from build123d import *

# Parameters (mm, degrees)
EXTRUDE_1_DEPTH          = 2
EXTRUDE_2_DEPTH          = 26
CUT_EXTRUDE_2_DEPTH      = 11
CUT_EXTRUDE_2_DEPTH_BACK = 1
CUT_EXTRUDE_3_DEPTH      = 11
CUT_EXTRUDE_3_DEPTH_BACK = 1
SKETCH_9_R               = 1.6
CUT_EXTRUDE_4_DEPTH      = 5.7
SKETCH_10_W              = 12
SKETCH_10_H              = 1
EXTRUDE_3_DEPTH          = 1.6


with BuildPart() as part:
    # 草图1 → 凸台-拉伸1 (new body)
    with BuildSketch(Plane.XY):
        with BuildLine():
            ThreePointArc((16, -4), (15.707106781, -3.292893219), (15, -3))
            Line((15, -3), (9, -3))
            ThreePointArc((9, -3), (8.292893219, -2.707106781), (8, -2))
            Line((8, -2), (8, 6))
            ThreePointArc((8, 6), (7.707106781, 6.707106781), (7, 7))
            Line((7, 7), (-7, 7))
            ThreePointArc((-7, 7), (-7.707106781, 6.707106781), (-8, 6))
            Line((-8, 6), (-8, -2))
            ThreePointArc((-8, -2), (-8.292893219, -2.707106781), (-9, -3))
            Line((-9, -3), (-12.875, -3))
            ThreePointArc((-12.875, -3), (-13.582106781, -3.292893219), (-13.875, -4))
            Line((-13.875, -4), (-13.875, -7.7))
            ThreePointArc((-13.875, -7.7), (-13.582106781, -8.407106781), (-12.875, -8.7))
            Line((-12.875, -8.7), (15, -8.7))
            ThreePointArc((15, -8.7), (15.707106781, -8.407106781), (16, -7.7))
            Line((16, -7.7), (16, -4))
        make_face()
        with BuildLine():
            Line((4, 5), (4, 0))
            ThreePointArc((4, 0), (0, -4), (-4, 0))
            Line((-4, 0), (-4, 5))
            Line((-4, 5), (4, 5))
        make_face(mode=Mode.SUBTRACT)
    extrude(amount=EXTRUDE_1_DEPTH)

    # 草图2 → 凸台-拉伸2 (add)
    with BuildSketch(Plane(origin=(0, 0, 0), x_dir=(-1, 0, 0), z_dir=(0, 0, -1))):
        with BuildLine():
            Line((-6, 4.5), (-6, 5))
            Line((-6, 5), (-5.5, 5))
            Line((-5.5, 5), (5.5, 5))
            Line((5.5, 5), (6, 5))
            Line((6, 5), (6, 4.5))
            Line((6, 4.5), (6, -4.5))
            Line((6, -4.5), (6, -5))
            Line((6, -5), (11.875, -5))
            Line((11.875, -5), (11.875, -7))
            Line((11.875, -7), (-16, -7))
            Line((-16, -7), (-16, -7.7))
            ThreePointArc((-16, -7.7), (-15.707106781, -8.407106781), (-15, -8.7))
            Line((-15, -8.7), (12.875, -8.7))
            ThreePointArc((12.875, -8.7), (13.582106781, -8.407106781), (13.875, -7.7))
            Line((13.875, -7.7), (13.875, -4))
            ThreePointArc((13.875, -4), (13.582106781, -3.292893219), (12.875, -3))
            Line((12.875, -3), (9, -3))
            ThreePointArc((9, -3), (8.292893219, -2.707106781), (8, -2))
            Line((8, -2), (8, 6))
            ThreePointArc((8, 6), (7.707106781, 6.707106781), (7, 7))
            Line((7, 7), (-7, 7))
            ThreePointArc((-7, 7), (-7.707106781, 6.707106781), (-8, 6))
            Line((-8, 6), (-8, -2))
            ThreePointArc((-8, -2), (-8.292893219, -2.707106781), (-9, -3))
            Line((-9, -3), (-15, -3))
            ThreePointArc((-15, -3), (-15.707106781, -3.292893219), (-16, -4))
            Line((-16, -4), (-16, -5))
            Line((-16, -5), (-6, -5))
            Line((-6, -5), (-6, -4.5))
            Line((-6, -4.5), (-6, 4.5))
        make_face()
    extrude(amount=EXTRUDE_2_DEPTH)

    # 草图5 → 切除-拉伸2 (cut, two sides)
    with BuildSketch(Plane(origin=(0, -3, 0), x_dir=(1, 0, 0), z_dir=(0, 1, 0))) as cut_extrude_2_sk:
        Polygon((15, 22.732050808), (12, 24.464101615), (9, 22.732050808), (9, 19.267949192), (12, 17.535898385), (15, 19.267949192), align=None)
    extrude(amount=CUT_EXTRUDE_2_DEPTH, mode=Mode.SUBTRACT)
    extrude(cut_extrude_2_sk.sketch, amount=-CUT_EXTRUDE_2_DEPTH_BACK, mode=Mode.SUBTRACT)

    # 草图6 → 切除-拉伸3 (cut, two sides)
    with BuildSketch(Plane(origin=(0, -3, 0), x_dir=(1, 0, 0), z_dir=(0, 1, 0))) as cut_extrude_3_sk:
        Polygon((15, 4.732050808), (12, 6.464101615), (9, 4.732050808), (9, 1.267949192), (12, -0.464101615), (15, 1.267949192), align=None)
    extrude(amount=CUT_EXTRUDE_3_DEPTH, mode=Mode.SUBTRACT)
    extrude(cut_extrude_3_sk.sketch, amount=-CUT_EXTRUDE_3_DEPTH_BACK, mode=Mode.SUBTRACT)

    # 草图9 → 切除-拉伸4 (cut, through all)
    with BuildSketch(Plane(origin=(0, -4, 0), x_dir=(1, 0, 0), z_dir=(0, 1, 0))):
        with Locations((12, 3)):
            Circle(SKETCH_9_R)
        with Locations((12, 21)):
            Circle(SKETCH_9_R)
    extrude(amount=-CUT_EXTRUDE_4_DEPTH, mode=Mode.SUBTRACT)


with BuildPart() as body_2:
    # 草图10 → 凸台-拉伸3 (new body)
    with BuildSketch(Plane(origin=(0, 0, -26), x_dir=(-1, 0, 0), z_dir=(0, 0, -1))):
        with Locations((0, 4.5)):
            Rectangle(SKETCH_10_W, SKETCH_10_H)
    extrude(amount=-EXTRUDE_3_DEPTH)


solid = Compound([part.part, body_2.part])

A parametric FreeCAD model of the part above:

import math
import FreeCAD as App
import Part
import Sketcher
Q = App.Units.Quantity


def add_polygon(sketch, points):
    """Adds a closed chain of lines whose ends are joined by coincident constraints."""
    first, n = sketch.GeometryCount, len(points)
    for a, b in zip(points, points[1:] + points[:1]):
        sketch.addGeometry(Part.LineSegment(App.Vector(*a, 0), App.Vector(*b, 0)), False)
    for i in range(n):
        sketch.addConstraint(Sketcher.Constraint("Coincident", first + i, 2, first + (i + 1) % n, 1))

doc = App.newDocument("Part")
body = doc.addObject("PartDesign::Body", "Body")

# Sketch on XY plane
sketch1 = doc.addObject("Sketcher::SketchObject", "Sketch")
body.addObject(sketch1)
sketch1.AttachmentSupport = (doc.XY_Plane, [""])
sketch1.MapMode = "FlatFace"
sketch1.addGeometry([
    Part.ArcOfCircle(Part.Circle(App.Vector(15, -4, 0), App.Vector(0, 0, 1), 1), math.radians(0), math.radians(90)),  # 0
    Part.LineSegment(App.Vector(15, -3, 0), App.Vector(9, -3, 0)),  # 1
    Part.ArcOfCircle(Part.Circle(App.Vector(9, -2, 0), App.Vector(0, 0, 1), 1), math.radians(-180), math.radians(-90)),  # 2
    Part.LineSegment(App.Vector(8, -2, 0), App.Vector(8, 6, 0)),  # 3
    Part.ArcOfCircle(Part.Circle(App.Vector(7, 6, 0), App.Vector(0, 0, 1), 1), math.radians(0), math.radians(90)),  # 4
    Part.LineSegment(App.Vector(7, 7, 0), App.Vector(-7, 7, 0)),  # 5
    Part.ArcOfCircle(Part.Circle(App.Vector(-7, 6, 0), App.Vector(0, 0, 1), 1), math.radians(90), math.radians(180)),  # 6
    Part.LineSegment(App.Vector(-8, 6, 0), App.Vector(-8, -2, 0)),  # 7
    Part.ArcOfCircle(Part.Circle(App.Vector(-9, -2, 0), App.Vector(0, 0, 1), 1), math.radians(-90), math.radians(0)),  # 8
    Part.LineSegment(App.Vector(-9, -3, 0), App.Vector(-12.9, -3, 0)),  # 9
    Part.ArcOfCircle(Part.Circle(App.Vector(-12.9, -4, 0), App.Vector(0, 0, 1), 1), math.radians(90), math.radians(180)),  # 10
    Part.LineSegment(App.Vector(-13.9, -4, 0), App.Vector(-13.9, -7.7, 0)),  # 11
    Part.ArcOfCircle(Part.Circle(App.Vector(-12.9, -7.7, 0), App.Vector(0, 0, 1), 1), math.radians(-180), math.radians(-90)),  # 12
    Part.LineSegment(App.Vector(-12.9, -8.7, 0), App.Vector(15, -8.7, 0)),  # 13
    Part.ArcOfCircle(Part.Circle(App.Vector(15, -7.7, 0), App.Vector(0, 0, 1), 1), math.radians(-90), math.radians(0)),  # 14
    Part.LineSegment(App.Vector(16, -7.7, 0), App.Vector(16, -4, 0)),  # 15
    Part.LineSegment(App.Vector(-4, 5, 0), App.Vector(4, 5, 0)),  # 16
    Part.LineSegment(App.Vector(4, 5, 0), App.Vector(4, 0, 0)),  # 17
    Part.ArcOfCircle(Part.Circle(App.Vector(0, 0, 0), App.Vector(0, 0, 1), 4), math.radians(180), math.radians(360)),  # 18
    Part.LineSegment(App.Vector(-4, 0, 0), App.Vector(-4, 5, 0)),  # 19
], False)
sketch1.addConstraint([
    Sketcher.Constraint("Tangent", 0, 2, 1, 1),
    Sketcher.Constraint("Tangent", 1, 2, 2, 2),
    Sketcher.Constraint("Tangent", 2, 1, 3, 1),
    Sketcher.Constraint("Tangent", 3, 2, 4, 1),
    Sketcher.Constraint("Tangent", 4, 2, 5, 1),
    Sketcher.Constraint("Tangent", 5, 2, 6, 1),
    Sketcher.Constraint("Tangent", 6, 2, 7, 1),
    Sketcher.Constraint("Tangent", 7, 2, 8, 2),
    Sketcher.Constraint("Tangent", 8, 1, 9, 1),
    Sketcher.Constraint("Tangent", 9, 2, 10, 1),
    Sketcher.Constraint("Tangent", 10, 2, 11, 1),
    Sketcher.Constraint("Tangent", 11, 2, 12, 1),
    Sketcher.Constraint("Tangent", 12, 2, 13, 1),
    Sketcher.Constraint("Tangent", 13, 2, 14, 1),
    Sketcher.Constraint("Tangent", 14, 2, 15, 1),
    Sketcher.Constraint("Tangent", 15, 2, 0, 1),
    Sketcher.Constraint("Coincident", 16, 2, 17, 1),
    Sketcher.Constraint("Tangent", 17, 2, 18, 2),
    Sketcher.Constraint("Tangent", 18, 1, 19, 1),
    Sketcher.Constraint("Coincident", 19, 2, 16, 1),
    Sketcher.Constraint("Horizontal", 1),
    Sketcher.Constraint("Vertical", 3),
    Sketcher.Constraint("Horizontal", 5),
    Sketcher.Constraint("Vertical", 7),
    Sketcher.Constraint("Horizontal", 9),
    Sketcher.Constraint("Vertical", 11),
    Sketcher.Constraint("Horizontal", 13),
    Sketcher.Constraint("Vertical", 15),
    Sketcher.Constraint("Horizontal", 16),
    Sketcher.Constraint("Vertical", 17),
    Sketcher.Constraint("Vertical", 19),
    Sketcher.Constraint("Coincident", 18, 3, -1, 1),
    Sketcher.Constraint("Equal", 0, 2),
    Sketcher.Constraint("Equal", 2, 4),
    Sketcher.Constraint("Equal", 4, 6),
    Sketcher.Constraint("Equal", 6, 8),
    Sketcher.Constraint("Equal", 8, 10),
    Sketcher.Constraint("Equal", 10, 12),
    Sketcher.Constraint("Equal", 12, 14),
    Sketcher.Constraint("Symmetric", 2, 3, 8, 3, -2),
    Sketcher.Constraint("Equal", 16, 3),
    Sketcher.Constraint("Radius", 0, 1.0),
    Sketcher.Constraint("Radius", 18, 4.0),
    Sketcher.Constraint("DistanceX", 1, 2, 1, 1, 6.0),
    Sketcher.Constraint("DistanceX", 5, 2, 5, 1, 14.0),
    Sketcher.Constraint("DistanceY", 17, 2, 17, 1, 5.0),
    Sketcher.Constraint("DistanceY", 11, 2, 11, 1, 3.7),
    Sketcher.Constraint("DistanceY", 0, 3, -1, 1, 4.0),
    Sketcher.Constraint("DistanceX", 9, 2, 9, 1, 3.875),
])
pad1 = doc.addObject("PartDesign::Pad", "Pad")
body.addObject(pad1)
pad1.Profile = sketch1
pad1.Length = 2

# Sketch on XY plane
sketch2 = doc.addObject("Sketcher::SketchObject", "Sketch001")
body.addObject(sketch2)
sketch2.AttachmentSupport = (doc.XY_Plane, [""])
sketch2.MapMode = "FlatFace"
sketch2.addGeometry([
    Part.LineSegment(App.Vector(6, 5, 0), App.Vector(-6, 5, 0)),  # 0
    Part.LineSegment(App.Vector(-6, 5, 0), App.Vector(-6, -5, 0)),  # 1
    Part.LineSegment(App.Vector(-6, -5, 0), App.Vector(-11.9, -5, 0)),  # 2
    Part.LineSegment(App.Vector(-11.9, -5, 0), App.Vector(-11.9, -7, 0)),  # 3
    Part.LineSegment(App.Vector(-11.9, -7, 0), App.Vector(16, -7, 0)),  # 4
    Part.LineSegment(App.Vector(16, -7, 0), App.Vector(16, -7.7, 0)),  # 5
    Part.ArcOfCircle(Part.Circle(App.Vector(15, -7.7, 0), App.Vector(0, 0, 1), 1), math.radians(-90), math.radians(0)),  # 6
    Part.LineSegment(App.Vector(15, -8.7, 0), App.Vector(-12.9, -8.7, 0)),  # 7
    Part.ArcOfCircle(Part.Circle(App.Vector(-12.9, -7.7, 0), App.Vector(0, 0, 1), 1), math.radians(-180), math.radians(-90)),  # 8
    Part.LineSegment(App.Vector(-13.9, -7.7, 0), App.Vector(-13.9, -4, 0)),  # 9
    Part.ArcOfCircle(Part.Circle(App.Vector(-12.9, -4, 0), App.Vector(0, 0, 1), 1), math.radians(90), math.radians(180)),  # 10
    Part.LineSegment(App.Vector(-12.9, -3, 0), App.Vector(-9, -3, 0)),  # 11
    Part.ArcOfCircle(Part.Circle(App.Vector(-9, -2, 0), App.Vector(0, 0, 1), 1), math.radians(-90), math.radians(0)),  # 12
    Part.LineSegment(App.Vector(-8, -2, 0), App.Vector(-8, 6, 0)),  # 13
    Part.ArcOfCircle(Part.Circle(App.Vector(-7, 6, 0), App.Vector(0, 0, 1), 1), math.radians(90), math.radians(180)),  # 14
    Part.LineSegment(App.Vector(-7, 7, 0), App.Vector(7, 7, 0)),  # 15
    Part.ArcOfCircle(Part.Circle(App.Vector(7, 6, 0), App.Vector(0, 0, 1), 1), math.radians(0), math.radians(90)),  # 16
    Part.LineSegment(App.Vector(8, 6, 0), App.Vector(8, -2, 0)),  # 17
    Part.ArcOfCircle(Part.Circle(App.Vector(9, -2, 0), App.Vector(0, 0, 1), 1), math.radians(-180), math.radians(-90)),  # 18
    Part.LineSegment(App.Vector(9, -3, 0), App.Vector(15, -3, 0)),  # 19
    Part.ArcOfCircle(Part.Circle(App.Vector(15, -4, 0), App.Vector(0, 0, 1), 1), math.radians(0), math.radians(90)),  # 20
    Part.LineSegment(App.Vector(16, -4, 0), App.Vector(16, -5, 0)),  # 21
    Part.LineSegment(App.Vector(16, -5, 0), App.Vector(6, -5, 0)),  # 22
    Part.LineSegment(App.Vector(6, -5, 0), App.Vector(6, 5, 0)),  # 23
], False)
sketch2.addConstraint([
    Sketcher.Constraint("Coincident", 0, 2, 1, 1),
    Sketcher.Constraint("Coincident", 1, 2, 2, 1),
    Sketcher.Constraint("Coincident", 2, 2, 3, 1),
    Sketcher.Constraint("Coincident", 3, 2, 4, 1),
    Sketcher.Constraint("Coincident", 4, 2, 5, 1),
    Sketcher.Constraint("Tangent", 5, 2, 6, 2),
    Sketcher.Constraint("Tangent", 6, 1, 7, 1),
    Sketcher.Constraint("Tangent", 7, 2, 8, 2),
    Sketcher.Constraint("Tangent", 8, 1, 9, 1),
    Sketcher.Constraint("Tangent", 9, 2, 10, 2),
    Sketcher.Constraint("Tangent", 10, 1, 11, 1),
    Sketcher.Constraint("Tangent", 11, 2, 12, 1),
    Sketcher.Constraint("Tangent", 12, 2, 13, 1),
    Sketcher.Constraint("Tangent", 13, 2, 14, 2),
    Sketcher.Constraint("Tangent", 14, 1, 15, 1),
    Sketcher.Constraint("Tangent", 15, 2, 16, 2),
    Sketcher.Constraint("Tangent", 16, 1, 17, 1),
    Sketcher.Constraint("Tangent", 17, 2, 18, 1),
    Sketcher.Constraint("Tangent", 18, 2, 19, 1),
    Sketcher.Constraint("Tangent", 19, 2, 20, 2),
    Sketcher.Constraint("Tangent", 20, 1, 21, 1),
    Sketcher.Constraint("Coincident", 21, 2, 22, 1),
    Sketcher.Constraint("Coincident", 22, 2, 23, 1),
    Sketcher.Constraint("Coincident", 23, 2, 0, 1),
    Sketcher.Constraint("Horizontal", 0),
    Sketcher.Constraint("Vertical", 1),
    Sketcher.Constraint("Horizontal", 2),
    Sketcher.Constraint("Vertical", 3),
    Sketcher.Constraint("Horizontal", 4),
    Sketcher.Constraint("Vertical", 5),
    Sketcher.Constraint("Horizontal", 7),
    Sketcher.Constraint("Vertical", 9),
    Sketcher.Constraint("Horizontal", 11),
    Sketcher.Constraint("Vertical", 13),
    Sketcher.Constraint("Horizontal", 15),
    Sketcher.Constraint("Vertical", 17),
    Sketcher.Constraint("Horizontal", 19),
    Sketcher.Constraint("Vertical", 21),
    Sketcher.Constraint("Horizontal", 22),
    Sketcher.Constraint("Vertical", 23),
    Sketcher.Constraint("Equal", 6, 8),
    Sketcher.Constraint("Equal", 8, 10),
    Sketcher.Constraint("Equal", 10, 12),
    Sketcher.Constraint("Equal", 12, 14),
    Sketcher.Constraint("Equal", 14, 16),
    Sketcher.Constraint("Equal", 16, 18),
    Sketcher.Constraint("Equal", 18, 20),
    Sketcher.Constraint("Symmetric", 0, 2, 22, 2, -1, 1),
    Sketcher.Constraint("Symmetric", 12, 3, 18, 3, -2),
    Sketcher.Constraint("Horizontal", 2, 2, 21, 2),
    Sketcher.Constraint("Vertical", 6, 3, 20, 3),
    Sketcher.Constraint("Equal", 4, 7),
    Sketcher.Constraint("Equal", 22, 1),
    Sketcher.Constraint("Radius", 6, 1.0),
    Sketcher.Constraint("DistanceX", 0, 2, 0, 1, 12.0),
    Sketcher.Constraint("DistanceX", 15, 1, 15, 2, 14.0),
    Sketcher.Constraint("DistanceX", 19, 1, 19, 2, 6.0),
    Sketcher.Constraint("DistanceY", 3, 2, 3, 1, 2.0),
    Sketcher.Constraint("DistanceY", 13, 1, 13, 2, 8.0),
    Sketcher.Constraint("DistanceY", 21, 2, 21, 1, 1.0),
    Sketcher.Constraint("DistanceY", 5, 2, 5, 1, 0.7),
    Sketcher.Constraint("DistanceX", 2, 2, 2, 1, 5.875),
])
pad2 = doc.addObject("PartDesign::Pad", "Pad001")
body.addObject(pad2)
pad2.Profile = sketch2
pad2.Length = 26
pad2.Reversed = True

# Sketch on XZ plane
sketch3 = doc.addObject("Sketcher::SketchObject", "Sketch002")
body.addObject(sketch3)
sketch3.AttachmentSupport = (doc.XZ_Plane, [""])
sketch3.MapMode = "FlatFace"
sketch3.AttachmentOffset = App.Placement(App.Vector(0, 0, 3), App.Rotation())
add_polygon(sketch3, [(15, -22.7), (12, -24.5), (9, -22.7), (9, -19.3), (12, -17.5), (15, -19.3)])  # lines 0-5
sketch3.addConstraint([
    Sketcher.Constraint("Vertical", 2),
    Sketcher.Constraint("Vertical", 5),
    Sketcher.Constraint("Parallel", 0, 3),
    Sketcher.Constraint("Parallel", 1, 4),
    Sketcher.Constraint("Horizontal", 2, 2, 4, 2),
    Sketcher.Constraint("Horizontal", 1, 2, 5, 2),
    Sketcher.Constraint("Vertical", 0, 2, 3, 2),
    Sketcher.Constraint("Angle", 0, Q("-150 deg")),
    Sketcher.Constraint("DistanceX", -1, 1, 0, 2, 12.0),
    Sketcher.Constraint("DistanceX", -1, 1, 1, 2, 9.0),
    Sketcher.Constraint("DistanceY", 2, 1, 2, 2, 3.464102),
    Sketcher.Constraint("DistanceY", 0, 2, -1, 1, 24.464102),
])
pocket1 = doc.addObject("PartDesign::Pocket", "Pocket")
body.addObject(pocket1)
pocket1.Profile = sketch3
pocket1.Type = "TwoLengths"
pocket1.Length = 11
pocket1.Length2 = 1

# Sketch on XZ plane
sketch4 = doc.addObject("Sketcher::SketchObject", "Sketch003")
body.addObject(sketch4)
sketch4.AttachmentSupport = (doc.XZ_Plane, [""])
sketch4.MapMode = "FlatFace"
sketch4.AttachmentOffset = App.Placement(App.Vector(0, 0, 3), App.Rotation())
add_polygon(sketch4, [(15, -4.7), (12, -6.5), (9, -4.7), (9, -1.3), (12, 0.5), (15, -1.3)])  # lines 0-5
sketch4.addConstraint([
    Sketcher.Constraint("Vertical", 2),
    Sketcher.Constraint("Vertical", 5),
    Sketcher.Constraint("Parallel", 0, 3),
    Sketcher.Constraint("Parallel", 1, 4),
    Sketcher.Constraint("Horizontal", 2, 2, 4, 2),
    Sketcher.Constraint("Horizontal", 1, 2, 5, 2),
    Sketcher.Constraint("Vertical", 0, 2, 3, 2),
    Sketcher.Constraint("Angle", 0, Q("-150 deg")),
    Sketcher.Constraint("DistanceX", -1, 1, 0, 2, 12.0),
    Sketcher.Constraint("DistanceX", -1, 1, 1, 2, 9.0),
    Sketcher.Constraint("DistanceY", 2, 1, 2, 2, 3.464102),
    Sketcher.Constraint("DistanceY", 0, 2, -1, 1, 6.464102),
])
pocket2 = doc.addObject("PartDesign::Pocket", "Pocket001")
body.addObject(pocket2)
pocket2.Profile = sketch4
pocket2.Type = "TwoLengths"
pocket2.Length = 11
pocket2.Length2 = 1

# Sketch on XZ plane
sketch5 = doc.addObject("Sketcher::SketchObject", "Sketch004")
body.addObject(sketch5)
sketch5.AttachmentSupport = (doc.XZ_Plane, [""])
sketch5.MapMode = "FlatFace"
sketch5.AttachmentOffset = App.Placement(App.Vector(0, 0, 4), App.Rotation())
sketch5.addGeometry([
    Part.Circle(App.Vector(12, -3, 0), App.Vector(0, 0, 1), 1.6),
    Part.Circle(App.Vector(12, -21, 0), App.Vector(0, 0, 1), 1.6),
], False)
sketch5.addConstraint([
    Sketcher.Constraint("Equal", 0, 1),
    Sketcher.Constraint("Vertical", 0, 3, 1, 3),
    Sketcher.Constraint("Diameter", 0, 3.2),
    Sketcher.Constraint("DistanceX", -1, 1, 0, 3, 12.0),
    Sketcher.Constraint("DistanceY", 0, 3, -1, 1, 3.0),
    Sketcher.Constraint("DistanceY", 1, 3, -1, 1, 21.0),
])
pocket3 = doc.addObject("PartDesign::Pocket", "Pocket002")
body.addObject(pocket3)
pocket3.Profile = sketch5
pocket3.Type = "ThroughAll"
pocket3.Reversed = True
body2 = doc.addObject("PartDesign::Body", "Body001")

# Sketch on XY plane
sketch6 = doc.addObject("Sketcher::SketchObject", "Sketch005")
body2.addObject(sketch6)
sketch6.AttachmentSupport = (doc.getObject("XY_Plane001"), [""])
sketch6.MapMode = "FlatFace"
sketch6.AttachmentOffset = App.Placement(App.Vector(0, 0, -26), App.Rotation())
add_polygon(sketch6, [(6, 5), (6, 4), (-6, 4), (-6, 5)])  # lines 0-3
sketch6.addConstraint([
    Sketcher.Constraint("Vertical", 0),
    Sketcher.Constraint("Horizontal", 1),
    Sketcher.Constraint("Vertical", 2),
    Sketcher.Constraint("Horizontal", 3),
    Sketcher.Constraint("DistanceX", 1, 2, 1, 1, 12.0),
    Sketcher.Constraint("DistanceY", 0, 2, 0, 1, 1.0),
    Sketcher.Constraint("DistanceX", -1, 1, 0, 2, 6.0),
    Sketcher.Constraint("DistanceY", -1, 1, 0, 2, 4.0),
])
pad3 = doc.addObject("PartDesign::Pad", "Pad002")
body2.addObject(pad3)
pad3.Profile = sketch6
pad3.Length = 1.6

doc.recompute()
